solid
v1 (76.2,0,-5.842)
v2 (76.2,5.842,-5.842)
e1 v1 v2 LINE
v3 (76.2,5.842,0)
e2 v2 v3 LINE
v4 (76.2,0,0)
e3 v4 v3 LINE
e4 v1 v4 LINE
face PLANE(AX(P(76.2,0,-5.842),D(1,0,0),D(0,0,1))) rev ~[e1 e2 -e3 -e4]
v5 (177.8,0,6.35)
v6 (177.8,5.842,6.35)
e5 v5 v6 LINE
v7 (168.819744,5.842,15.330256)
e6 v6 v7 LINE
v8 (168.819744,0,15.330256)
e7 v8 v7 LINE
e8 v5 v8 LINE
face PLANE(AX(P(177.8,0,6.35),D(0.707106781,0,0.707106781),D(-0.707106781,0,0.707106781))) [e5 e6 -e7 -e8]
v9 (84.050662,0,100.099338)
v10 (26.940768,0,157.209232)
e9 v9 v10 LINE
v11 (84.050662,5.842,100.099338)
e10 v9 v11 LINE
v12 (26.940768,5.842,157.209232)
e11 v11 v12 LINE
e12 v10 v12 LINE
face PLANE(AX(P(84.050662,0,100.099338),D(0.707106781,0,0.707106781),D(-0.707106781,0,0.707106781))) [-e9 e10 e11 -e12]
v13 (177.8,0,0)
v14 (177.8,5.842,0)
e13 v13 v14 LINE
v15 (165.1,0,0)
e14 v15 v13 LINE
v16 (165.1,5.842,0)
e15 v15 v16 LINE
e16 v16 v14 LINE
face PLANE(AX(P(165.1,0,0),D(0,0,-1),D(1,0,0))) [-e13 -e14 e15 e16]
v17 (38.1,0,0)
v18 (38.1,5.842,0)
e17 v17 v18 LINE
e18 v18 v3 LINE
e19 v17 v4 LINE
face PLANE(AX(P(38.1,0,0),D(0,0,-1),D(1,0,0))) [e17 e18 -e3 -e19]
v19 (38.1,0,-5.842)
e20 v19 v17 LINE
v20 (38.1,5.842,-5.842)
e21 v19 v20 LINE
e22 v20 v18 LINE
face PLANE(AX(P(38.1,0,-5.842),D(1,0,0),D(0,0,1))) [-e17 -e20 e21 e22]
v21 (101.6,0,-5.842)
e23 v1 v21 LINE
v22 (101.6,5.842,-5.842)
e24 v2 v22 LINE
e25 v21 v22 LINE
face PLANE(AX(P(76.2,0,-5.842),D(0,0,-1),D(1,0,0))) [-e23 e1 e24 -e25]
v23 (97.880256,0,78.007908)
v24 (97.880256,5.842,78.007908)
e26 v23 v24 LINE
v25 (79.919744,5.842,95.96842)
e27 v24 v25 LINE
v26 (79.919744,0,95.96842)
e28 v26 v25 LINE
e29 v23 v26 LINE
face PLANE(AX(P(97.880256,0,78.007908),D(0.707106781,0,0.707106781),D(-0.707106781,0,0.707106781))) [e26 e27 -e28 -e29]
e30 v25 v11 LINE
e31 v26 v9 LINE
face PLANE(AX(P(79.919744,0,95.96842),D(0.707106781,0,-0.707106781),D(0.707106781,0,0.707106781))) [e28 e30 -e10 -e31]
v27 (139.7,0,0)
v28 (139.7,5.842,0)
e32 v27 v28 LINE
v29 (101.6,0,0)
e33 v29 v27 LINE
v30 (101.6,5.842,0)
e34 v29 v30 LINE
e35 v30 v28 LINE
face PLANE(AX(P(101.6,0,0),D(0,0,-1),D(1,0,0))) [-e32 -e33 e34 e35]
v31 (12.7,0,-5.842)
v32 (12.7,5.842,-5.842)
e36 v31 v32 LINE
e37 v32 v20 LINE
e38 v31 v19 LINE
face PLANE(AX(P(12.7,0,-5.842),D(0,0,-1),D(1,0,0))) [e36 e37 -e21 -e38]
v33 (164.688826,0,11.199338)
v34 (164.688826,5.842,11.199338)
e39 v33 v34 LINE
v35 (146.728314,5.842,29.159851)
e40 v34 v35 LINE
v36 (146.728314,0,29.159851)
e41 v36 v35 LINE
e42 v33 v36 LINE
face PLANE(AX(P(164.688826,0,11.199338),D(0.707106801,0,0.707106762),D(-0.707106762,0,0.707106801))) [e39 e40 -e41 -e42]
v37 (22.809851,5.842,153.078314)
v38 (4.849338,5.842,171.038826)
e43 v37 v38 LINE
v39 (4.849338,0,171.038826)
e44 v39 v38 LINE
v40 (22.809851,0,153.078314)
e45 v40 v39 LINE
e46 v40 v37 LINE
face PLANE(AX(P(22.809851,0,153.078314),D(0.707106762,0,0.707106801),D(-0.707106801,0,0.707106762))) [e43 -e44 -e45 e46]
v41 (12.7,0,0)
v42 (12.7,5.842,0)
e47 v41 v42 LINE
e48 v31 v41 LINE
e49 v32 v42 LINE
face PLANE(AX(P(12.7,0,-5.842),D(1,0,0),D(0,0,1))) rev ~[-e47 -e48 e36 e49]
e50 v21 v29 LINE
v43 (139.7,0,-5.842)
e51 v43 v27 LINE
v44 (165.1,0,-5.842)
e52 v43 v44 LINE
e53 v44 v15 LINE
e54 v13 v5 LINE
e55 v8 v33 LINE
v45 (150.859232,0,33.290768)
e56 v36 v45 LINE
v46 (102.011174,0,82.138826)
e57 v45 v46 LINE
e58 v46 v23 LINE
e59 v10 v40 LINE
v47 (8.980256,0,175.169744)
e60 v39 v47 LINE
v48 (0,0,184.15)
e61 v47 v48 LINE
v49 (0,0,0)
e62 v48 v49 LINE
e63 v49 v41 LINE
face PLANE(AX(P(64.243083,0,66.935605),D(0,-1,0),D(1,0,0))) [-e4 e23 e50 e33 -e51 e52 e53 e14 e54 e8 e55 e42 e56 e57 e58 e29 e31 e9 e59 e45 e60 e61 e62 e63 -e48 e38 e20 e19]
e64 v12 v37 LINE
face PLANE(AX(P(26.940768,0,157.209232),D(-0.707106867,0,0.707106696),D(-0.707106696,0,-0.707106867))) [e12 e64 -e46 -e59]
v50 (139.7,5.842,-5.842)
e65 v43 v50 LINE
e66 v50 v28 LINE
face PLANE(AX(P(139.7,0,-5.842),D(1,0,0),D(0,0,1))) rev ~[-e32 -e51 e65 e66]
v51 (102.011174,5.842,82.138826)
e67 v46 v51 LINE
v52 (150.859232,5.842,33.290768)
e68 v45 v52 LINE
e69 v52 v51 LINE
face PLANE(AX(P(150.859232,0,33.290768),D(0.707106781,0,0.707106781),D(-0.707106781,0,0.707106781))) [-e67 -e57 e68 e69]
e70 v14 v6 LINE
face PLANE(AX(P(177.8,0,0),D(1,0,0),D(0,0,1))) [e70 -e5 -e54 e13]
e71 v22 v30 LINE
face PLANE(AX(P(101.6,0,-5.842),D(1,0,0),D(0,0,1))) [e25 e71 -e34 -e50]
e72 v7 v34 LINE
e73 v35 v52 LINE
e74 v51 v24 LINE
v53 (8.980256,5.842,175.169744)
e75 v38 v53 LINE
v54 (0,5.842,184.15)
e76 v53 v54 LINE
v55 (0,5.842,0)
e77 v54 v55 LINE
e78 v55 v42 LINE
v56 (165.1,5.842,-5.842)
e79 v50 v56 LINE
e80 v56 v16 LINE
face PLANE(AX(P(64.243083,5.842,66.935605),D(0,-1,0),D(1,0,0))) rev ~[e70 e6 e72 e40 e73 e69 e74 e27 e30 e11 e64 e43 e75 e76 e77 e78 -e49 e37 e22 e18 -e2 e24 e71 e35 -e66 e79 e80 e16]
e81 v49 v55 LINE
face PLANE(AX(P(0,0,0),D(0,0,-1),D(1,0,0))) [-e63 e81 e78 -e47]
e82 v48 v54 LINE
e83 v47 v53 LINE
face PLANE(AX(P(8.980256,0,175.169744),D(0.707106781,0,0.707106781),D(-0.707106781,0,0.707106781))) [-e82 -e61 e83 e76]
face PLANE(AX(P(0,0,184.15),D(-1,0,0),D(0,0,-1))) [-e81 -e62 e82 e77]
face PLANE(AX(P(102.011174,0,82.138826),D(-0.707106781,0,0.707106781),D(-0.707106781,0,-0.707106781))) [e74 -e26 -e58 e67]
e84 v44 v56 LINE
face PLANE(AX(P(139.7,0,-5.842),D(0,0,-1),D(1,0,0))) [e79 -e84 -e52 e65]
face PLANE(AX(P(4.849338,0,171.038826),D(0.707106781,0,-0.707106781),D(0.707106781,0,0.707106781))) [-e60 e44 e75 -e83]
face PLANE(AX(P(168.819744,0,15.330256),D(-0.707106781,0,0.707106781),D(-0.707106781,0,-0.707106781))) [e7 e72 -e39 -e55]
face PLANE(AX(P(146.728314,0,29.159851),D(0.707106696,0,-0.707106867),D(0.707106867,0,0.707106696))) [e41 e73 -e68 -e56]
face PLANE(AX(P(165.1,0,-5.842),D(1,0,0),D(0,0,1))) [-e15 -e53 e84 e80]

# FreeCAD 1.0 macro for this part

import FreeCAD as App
import Part
import Sketcher
Q = App.Units.Quantity


def add_polygon(sketch, points):
    """Adds a closed chain of lines whose ends are joined by coincident constraints."""
    first, n = sketch.GeometryCount, len(points)
    for a, b in zip(points, points[1:] + points[:1]):
        sketch.addGeometry(Part.LineSegment(App.Vector(*a, 0), App.Vector(*b, 0)), False)
    for i in range(n):
        sketch.addConstraint(Sketcher.Constraint("Coincident", first + i, 2, first + (i + 1) % n, 1))

doc = App.newDocument("Part")
body = doc.addObject("PartDesign::Body", "Body")

# Sketch on XZ plane
sketch1 = body.newObject("Sketcher::SketchObject", "Sketch")
sketch1.AttachmentSupport = (doc.getObject("XZ_Plane"), [""])
sketch1.MapMode = "FlatFace"
add_polygon(sketch1, [(9, 175), (0, 184), (0, 0), (13, 0), (13, -6), (38, -6), (38, 0), (76, 0), (76, -6), (102, -6), (102, 0), (140, 0), (140, -6), (165, -6), (165, 0), (178, 0), (178, 6), (169, 15), (165, 11), (147, 29), (151, 33), (102, 82), (98, 78), (80, 96), (84, 100), (27, 157), (23, 153), (5, 171)])  # lines 0-27
sketch1.addConstraint([
    Sketcher.Constraint("Vertical", 1),
    Sketcher.Constraint("Horizontal", 2),
    Sketcher.Constraint("Vertical", 3),
    Sketcher.Constraint("Horizontal", 4),
    Sketcher.Constraint("Vertical", 5),
    Sketcher.Constraint("Horizontal", 6),
    Sketcher.Constraint("Vertical", 7),
    Sketcher.Constraint("Horizontal", 8),
    Sketcher.Constraint("Vertical", 9),
    Sketcher.Constraint("Horizontal", 10),
    Sketcher.Constraint("Vertical", 11),
    Sketcher.Constraint("Horizontal", 12),
    Sketcher.Constraint("Vertical", 13),
    Sketcher.Constraint("Horizontal", 14),
    Sketcher.Constraint("Vertical", 15),
    Sketcher.Constraint("Coincident", 1, 2, -1, 1),
    Sketcher.Constraint("PointOnObject", 5, 2, -1),
    Sketcher.Constraint("PointOnObject", 9, 2, -1),
    Sketcher.Constraint("PointOnObject", 13, 2, -1),
    Sketcher.Constraint("Parallel", 0, 16),
    Sketcher.Constraint("Perpendicular", 16, 17),
    Sketcher.Constraint("Perpendicular", 17, 18),
    Sketcher.Constraint("Perpendicular", 18, 19),
    Sketcher.Constraint("Perpendicular", 19, 20),
    Sketcher.Constraint("Perpendicular", 20, 21),
    Sketcher.Constraint("Perpendicular", 21, 22),
    Sketcher.Constraint("Perpendicular", 22, 23),
    Sketcher.Constraint("Perpendicular", 23, 24),
    Sketcher.Constraint("Perpendicular", 24, 25),
    Sketcher.Constraint("Perpendicular", 25, 26),
    Sketcher.Constraint("Perpendicular", 26, 27),
    Sketcher.Constraint("Horizontal", 4, 2, 7, 2),
    Sketcher.Constraint("Horizontal", 8, 2, 11, 2),
    Sketcher.Constraint("Equal", 4, 8),
    Sketcher.Constraint("Equal", 6, 10),
    Sketcher.Constraint("Equal", 8, 12),
    Sketcher.Constraint("Equal", 2, 14),
    Sketcher.Constraint("Equal", 0, 16),
    Sketcher.Constraint("Equal", 17, 19),
    Sketcher.Constraint("Equal", 19, 21),
    Sketcher.Constraint("Equal", 18, 22),
    Sketcher.Constraint("Equal", 21, 23),
    Sketcher.Constraint("Equal", 23, 25),
    Sketcher.Constraint("Equal", 22, 26),
    Sketcher.Constraint("Equal", 25, 27),
    Sketcher.Constraint("DistanceX", 4, 1, 4, 2, Q("1 in")),
    Sketcher.Constraint("Distance", 18, Q("1 in")),
    Sketcher.Constraint("DistanceX", 2, 1, 2, 2, Q("0.5 in")),
    Sketcher.Constraint("DistanceX", 6, 1, 6, 2, Q("1.5 in")),
    Sketcher.Constraint("Angle", 0, Q("135 deg")),
    Sketcher.Constraint("Distance", 0, Q("0.5 in")),
    Sketcher.Constraint("DistanceY", 1, 2, 1, 1, Q("7.25 in")),
    Sketcher.Constraint("DistanceY", 3, 2, 3, 1, Q("0.23 in")),
    Sketcher.Constraint("Distance", 17, Q("0.23 in")),
    Sketcher.Constraint("DistanceY", -1, 1, 21, 2, 78.007908),
])
pad1 = body.newObject("PartDesign::Pad", "Pad")
pad1.Profile = sketch1
pad1.Length = Q("0.23 in")
pad1.Reversed = True

doc.recompute()
